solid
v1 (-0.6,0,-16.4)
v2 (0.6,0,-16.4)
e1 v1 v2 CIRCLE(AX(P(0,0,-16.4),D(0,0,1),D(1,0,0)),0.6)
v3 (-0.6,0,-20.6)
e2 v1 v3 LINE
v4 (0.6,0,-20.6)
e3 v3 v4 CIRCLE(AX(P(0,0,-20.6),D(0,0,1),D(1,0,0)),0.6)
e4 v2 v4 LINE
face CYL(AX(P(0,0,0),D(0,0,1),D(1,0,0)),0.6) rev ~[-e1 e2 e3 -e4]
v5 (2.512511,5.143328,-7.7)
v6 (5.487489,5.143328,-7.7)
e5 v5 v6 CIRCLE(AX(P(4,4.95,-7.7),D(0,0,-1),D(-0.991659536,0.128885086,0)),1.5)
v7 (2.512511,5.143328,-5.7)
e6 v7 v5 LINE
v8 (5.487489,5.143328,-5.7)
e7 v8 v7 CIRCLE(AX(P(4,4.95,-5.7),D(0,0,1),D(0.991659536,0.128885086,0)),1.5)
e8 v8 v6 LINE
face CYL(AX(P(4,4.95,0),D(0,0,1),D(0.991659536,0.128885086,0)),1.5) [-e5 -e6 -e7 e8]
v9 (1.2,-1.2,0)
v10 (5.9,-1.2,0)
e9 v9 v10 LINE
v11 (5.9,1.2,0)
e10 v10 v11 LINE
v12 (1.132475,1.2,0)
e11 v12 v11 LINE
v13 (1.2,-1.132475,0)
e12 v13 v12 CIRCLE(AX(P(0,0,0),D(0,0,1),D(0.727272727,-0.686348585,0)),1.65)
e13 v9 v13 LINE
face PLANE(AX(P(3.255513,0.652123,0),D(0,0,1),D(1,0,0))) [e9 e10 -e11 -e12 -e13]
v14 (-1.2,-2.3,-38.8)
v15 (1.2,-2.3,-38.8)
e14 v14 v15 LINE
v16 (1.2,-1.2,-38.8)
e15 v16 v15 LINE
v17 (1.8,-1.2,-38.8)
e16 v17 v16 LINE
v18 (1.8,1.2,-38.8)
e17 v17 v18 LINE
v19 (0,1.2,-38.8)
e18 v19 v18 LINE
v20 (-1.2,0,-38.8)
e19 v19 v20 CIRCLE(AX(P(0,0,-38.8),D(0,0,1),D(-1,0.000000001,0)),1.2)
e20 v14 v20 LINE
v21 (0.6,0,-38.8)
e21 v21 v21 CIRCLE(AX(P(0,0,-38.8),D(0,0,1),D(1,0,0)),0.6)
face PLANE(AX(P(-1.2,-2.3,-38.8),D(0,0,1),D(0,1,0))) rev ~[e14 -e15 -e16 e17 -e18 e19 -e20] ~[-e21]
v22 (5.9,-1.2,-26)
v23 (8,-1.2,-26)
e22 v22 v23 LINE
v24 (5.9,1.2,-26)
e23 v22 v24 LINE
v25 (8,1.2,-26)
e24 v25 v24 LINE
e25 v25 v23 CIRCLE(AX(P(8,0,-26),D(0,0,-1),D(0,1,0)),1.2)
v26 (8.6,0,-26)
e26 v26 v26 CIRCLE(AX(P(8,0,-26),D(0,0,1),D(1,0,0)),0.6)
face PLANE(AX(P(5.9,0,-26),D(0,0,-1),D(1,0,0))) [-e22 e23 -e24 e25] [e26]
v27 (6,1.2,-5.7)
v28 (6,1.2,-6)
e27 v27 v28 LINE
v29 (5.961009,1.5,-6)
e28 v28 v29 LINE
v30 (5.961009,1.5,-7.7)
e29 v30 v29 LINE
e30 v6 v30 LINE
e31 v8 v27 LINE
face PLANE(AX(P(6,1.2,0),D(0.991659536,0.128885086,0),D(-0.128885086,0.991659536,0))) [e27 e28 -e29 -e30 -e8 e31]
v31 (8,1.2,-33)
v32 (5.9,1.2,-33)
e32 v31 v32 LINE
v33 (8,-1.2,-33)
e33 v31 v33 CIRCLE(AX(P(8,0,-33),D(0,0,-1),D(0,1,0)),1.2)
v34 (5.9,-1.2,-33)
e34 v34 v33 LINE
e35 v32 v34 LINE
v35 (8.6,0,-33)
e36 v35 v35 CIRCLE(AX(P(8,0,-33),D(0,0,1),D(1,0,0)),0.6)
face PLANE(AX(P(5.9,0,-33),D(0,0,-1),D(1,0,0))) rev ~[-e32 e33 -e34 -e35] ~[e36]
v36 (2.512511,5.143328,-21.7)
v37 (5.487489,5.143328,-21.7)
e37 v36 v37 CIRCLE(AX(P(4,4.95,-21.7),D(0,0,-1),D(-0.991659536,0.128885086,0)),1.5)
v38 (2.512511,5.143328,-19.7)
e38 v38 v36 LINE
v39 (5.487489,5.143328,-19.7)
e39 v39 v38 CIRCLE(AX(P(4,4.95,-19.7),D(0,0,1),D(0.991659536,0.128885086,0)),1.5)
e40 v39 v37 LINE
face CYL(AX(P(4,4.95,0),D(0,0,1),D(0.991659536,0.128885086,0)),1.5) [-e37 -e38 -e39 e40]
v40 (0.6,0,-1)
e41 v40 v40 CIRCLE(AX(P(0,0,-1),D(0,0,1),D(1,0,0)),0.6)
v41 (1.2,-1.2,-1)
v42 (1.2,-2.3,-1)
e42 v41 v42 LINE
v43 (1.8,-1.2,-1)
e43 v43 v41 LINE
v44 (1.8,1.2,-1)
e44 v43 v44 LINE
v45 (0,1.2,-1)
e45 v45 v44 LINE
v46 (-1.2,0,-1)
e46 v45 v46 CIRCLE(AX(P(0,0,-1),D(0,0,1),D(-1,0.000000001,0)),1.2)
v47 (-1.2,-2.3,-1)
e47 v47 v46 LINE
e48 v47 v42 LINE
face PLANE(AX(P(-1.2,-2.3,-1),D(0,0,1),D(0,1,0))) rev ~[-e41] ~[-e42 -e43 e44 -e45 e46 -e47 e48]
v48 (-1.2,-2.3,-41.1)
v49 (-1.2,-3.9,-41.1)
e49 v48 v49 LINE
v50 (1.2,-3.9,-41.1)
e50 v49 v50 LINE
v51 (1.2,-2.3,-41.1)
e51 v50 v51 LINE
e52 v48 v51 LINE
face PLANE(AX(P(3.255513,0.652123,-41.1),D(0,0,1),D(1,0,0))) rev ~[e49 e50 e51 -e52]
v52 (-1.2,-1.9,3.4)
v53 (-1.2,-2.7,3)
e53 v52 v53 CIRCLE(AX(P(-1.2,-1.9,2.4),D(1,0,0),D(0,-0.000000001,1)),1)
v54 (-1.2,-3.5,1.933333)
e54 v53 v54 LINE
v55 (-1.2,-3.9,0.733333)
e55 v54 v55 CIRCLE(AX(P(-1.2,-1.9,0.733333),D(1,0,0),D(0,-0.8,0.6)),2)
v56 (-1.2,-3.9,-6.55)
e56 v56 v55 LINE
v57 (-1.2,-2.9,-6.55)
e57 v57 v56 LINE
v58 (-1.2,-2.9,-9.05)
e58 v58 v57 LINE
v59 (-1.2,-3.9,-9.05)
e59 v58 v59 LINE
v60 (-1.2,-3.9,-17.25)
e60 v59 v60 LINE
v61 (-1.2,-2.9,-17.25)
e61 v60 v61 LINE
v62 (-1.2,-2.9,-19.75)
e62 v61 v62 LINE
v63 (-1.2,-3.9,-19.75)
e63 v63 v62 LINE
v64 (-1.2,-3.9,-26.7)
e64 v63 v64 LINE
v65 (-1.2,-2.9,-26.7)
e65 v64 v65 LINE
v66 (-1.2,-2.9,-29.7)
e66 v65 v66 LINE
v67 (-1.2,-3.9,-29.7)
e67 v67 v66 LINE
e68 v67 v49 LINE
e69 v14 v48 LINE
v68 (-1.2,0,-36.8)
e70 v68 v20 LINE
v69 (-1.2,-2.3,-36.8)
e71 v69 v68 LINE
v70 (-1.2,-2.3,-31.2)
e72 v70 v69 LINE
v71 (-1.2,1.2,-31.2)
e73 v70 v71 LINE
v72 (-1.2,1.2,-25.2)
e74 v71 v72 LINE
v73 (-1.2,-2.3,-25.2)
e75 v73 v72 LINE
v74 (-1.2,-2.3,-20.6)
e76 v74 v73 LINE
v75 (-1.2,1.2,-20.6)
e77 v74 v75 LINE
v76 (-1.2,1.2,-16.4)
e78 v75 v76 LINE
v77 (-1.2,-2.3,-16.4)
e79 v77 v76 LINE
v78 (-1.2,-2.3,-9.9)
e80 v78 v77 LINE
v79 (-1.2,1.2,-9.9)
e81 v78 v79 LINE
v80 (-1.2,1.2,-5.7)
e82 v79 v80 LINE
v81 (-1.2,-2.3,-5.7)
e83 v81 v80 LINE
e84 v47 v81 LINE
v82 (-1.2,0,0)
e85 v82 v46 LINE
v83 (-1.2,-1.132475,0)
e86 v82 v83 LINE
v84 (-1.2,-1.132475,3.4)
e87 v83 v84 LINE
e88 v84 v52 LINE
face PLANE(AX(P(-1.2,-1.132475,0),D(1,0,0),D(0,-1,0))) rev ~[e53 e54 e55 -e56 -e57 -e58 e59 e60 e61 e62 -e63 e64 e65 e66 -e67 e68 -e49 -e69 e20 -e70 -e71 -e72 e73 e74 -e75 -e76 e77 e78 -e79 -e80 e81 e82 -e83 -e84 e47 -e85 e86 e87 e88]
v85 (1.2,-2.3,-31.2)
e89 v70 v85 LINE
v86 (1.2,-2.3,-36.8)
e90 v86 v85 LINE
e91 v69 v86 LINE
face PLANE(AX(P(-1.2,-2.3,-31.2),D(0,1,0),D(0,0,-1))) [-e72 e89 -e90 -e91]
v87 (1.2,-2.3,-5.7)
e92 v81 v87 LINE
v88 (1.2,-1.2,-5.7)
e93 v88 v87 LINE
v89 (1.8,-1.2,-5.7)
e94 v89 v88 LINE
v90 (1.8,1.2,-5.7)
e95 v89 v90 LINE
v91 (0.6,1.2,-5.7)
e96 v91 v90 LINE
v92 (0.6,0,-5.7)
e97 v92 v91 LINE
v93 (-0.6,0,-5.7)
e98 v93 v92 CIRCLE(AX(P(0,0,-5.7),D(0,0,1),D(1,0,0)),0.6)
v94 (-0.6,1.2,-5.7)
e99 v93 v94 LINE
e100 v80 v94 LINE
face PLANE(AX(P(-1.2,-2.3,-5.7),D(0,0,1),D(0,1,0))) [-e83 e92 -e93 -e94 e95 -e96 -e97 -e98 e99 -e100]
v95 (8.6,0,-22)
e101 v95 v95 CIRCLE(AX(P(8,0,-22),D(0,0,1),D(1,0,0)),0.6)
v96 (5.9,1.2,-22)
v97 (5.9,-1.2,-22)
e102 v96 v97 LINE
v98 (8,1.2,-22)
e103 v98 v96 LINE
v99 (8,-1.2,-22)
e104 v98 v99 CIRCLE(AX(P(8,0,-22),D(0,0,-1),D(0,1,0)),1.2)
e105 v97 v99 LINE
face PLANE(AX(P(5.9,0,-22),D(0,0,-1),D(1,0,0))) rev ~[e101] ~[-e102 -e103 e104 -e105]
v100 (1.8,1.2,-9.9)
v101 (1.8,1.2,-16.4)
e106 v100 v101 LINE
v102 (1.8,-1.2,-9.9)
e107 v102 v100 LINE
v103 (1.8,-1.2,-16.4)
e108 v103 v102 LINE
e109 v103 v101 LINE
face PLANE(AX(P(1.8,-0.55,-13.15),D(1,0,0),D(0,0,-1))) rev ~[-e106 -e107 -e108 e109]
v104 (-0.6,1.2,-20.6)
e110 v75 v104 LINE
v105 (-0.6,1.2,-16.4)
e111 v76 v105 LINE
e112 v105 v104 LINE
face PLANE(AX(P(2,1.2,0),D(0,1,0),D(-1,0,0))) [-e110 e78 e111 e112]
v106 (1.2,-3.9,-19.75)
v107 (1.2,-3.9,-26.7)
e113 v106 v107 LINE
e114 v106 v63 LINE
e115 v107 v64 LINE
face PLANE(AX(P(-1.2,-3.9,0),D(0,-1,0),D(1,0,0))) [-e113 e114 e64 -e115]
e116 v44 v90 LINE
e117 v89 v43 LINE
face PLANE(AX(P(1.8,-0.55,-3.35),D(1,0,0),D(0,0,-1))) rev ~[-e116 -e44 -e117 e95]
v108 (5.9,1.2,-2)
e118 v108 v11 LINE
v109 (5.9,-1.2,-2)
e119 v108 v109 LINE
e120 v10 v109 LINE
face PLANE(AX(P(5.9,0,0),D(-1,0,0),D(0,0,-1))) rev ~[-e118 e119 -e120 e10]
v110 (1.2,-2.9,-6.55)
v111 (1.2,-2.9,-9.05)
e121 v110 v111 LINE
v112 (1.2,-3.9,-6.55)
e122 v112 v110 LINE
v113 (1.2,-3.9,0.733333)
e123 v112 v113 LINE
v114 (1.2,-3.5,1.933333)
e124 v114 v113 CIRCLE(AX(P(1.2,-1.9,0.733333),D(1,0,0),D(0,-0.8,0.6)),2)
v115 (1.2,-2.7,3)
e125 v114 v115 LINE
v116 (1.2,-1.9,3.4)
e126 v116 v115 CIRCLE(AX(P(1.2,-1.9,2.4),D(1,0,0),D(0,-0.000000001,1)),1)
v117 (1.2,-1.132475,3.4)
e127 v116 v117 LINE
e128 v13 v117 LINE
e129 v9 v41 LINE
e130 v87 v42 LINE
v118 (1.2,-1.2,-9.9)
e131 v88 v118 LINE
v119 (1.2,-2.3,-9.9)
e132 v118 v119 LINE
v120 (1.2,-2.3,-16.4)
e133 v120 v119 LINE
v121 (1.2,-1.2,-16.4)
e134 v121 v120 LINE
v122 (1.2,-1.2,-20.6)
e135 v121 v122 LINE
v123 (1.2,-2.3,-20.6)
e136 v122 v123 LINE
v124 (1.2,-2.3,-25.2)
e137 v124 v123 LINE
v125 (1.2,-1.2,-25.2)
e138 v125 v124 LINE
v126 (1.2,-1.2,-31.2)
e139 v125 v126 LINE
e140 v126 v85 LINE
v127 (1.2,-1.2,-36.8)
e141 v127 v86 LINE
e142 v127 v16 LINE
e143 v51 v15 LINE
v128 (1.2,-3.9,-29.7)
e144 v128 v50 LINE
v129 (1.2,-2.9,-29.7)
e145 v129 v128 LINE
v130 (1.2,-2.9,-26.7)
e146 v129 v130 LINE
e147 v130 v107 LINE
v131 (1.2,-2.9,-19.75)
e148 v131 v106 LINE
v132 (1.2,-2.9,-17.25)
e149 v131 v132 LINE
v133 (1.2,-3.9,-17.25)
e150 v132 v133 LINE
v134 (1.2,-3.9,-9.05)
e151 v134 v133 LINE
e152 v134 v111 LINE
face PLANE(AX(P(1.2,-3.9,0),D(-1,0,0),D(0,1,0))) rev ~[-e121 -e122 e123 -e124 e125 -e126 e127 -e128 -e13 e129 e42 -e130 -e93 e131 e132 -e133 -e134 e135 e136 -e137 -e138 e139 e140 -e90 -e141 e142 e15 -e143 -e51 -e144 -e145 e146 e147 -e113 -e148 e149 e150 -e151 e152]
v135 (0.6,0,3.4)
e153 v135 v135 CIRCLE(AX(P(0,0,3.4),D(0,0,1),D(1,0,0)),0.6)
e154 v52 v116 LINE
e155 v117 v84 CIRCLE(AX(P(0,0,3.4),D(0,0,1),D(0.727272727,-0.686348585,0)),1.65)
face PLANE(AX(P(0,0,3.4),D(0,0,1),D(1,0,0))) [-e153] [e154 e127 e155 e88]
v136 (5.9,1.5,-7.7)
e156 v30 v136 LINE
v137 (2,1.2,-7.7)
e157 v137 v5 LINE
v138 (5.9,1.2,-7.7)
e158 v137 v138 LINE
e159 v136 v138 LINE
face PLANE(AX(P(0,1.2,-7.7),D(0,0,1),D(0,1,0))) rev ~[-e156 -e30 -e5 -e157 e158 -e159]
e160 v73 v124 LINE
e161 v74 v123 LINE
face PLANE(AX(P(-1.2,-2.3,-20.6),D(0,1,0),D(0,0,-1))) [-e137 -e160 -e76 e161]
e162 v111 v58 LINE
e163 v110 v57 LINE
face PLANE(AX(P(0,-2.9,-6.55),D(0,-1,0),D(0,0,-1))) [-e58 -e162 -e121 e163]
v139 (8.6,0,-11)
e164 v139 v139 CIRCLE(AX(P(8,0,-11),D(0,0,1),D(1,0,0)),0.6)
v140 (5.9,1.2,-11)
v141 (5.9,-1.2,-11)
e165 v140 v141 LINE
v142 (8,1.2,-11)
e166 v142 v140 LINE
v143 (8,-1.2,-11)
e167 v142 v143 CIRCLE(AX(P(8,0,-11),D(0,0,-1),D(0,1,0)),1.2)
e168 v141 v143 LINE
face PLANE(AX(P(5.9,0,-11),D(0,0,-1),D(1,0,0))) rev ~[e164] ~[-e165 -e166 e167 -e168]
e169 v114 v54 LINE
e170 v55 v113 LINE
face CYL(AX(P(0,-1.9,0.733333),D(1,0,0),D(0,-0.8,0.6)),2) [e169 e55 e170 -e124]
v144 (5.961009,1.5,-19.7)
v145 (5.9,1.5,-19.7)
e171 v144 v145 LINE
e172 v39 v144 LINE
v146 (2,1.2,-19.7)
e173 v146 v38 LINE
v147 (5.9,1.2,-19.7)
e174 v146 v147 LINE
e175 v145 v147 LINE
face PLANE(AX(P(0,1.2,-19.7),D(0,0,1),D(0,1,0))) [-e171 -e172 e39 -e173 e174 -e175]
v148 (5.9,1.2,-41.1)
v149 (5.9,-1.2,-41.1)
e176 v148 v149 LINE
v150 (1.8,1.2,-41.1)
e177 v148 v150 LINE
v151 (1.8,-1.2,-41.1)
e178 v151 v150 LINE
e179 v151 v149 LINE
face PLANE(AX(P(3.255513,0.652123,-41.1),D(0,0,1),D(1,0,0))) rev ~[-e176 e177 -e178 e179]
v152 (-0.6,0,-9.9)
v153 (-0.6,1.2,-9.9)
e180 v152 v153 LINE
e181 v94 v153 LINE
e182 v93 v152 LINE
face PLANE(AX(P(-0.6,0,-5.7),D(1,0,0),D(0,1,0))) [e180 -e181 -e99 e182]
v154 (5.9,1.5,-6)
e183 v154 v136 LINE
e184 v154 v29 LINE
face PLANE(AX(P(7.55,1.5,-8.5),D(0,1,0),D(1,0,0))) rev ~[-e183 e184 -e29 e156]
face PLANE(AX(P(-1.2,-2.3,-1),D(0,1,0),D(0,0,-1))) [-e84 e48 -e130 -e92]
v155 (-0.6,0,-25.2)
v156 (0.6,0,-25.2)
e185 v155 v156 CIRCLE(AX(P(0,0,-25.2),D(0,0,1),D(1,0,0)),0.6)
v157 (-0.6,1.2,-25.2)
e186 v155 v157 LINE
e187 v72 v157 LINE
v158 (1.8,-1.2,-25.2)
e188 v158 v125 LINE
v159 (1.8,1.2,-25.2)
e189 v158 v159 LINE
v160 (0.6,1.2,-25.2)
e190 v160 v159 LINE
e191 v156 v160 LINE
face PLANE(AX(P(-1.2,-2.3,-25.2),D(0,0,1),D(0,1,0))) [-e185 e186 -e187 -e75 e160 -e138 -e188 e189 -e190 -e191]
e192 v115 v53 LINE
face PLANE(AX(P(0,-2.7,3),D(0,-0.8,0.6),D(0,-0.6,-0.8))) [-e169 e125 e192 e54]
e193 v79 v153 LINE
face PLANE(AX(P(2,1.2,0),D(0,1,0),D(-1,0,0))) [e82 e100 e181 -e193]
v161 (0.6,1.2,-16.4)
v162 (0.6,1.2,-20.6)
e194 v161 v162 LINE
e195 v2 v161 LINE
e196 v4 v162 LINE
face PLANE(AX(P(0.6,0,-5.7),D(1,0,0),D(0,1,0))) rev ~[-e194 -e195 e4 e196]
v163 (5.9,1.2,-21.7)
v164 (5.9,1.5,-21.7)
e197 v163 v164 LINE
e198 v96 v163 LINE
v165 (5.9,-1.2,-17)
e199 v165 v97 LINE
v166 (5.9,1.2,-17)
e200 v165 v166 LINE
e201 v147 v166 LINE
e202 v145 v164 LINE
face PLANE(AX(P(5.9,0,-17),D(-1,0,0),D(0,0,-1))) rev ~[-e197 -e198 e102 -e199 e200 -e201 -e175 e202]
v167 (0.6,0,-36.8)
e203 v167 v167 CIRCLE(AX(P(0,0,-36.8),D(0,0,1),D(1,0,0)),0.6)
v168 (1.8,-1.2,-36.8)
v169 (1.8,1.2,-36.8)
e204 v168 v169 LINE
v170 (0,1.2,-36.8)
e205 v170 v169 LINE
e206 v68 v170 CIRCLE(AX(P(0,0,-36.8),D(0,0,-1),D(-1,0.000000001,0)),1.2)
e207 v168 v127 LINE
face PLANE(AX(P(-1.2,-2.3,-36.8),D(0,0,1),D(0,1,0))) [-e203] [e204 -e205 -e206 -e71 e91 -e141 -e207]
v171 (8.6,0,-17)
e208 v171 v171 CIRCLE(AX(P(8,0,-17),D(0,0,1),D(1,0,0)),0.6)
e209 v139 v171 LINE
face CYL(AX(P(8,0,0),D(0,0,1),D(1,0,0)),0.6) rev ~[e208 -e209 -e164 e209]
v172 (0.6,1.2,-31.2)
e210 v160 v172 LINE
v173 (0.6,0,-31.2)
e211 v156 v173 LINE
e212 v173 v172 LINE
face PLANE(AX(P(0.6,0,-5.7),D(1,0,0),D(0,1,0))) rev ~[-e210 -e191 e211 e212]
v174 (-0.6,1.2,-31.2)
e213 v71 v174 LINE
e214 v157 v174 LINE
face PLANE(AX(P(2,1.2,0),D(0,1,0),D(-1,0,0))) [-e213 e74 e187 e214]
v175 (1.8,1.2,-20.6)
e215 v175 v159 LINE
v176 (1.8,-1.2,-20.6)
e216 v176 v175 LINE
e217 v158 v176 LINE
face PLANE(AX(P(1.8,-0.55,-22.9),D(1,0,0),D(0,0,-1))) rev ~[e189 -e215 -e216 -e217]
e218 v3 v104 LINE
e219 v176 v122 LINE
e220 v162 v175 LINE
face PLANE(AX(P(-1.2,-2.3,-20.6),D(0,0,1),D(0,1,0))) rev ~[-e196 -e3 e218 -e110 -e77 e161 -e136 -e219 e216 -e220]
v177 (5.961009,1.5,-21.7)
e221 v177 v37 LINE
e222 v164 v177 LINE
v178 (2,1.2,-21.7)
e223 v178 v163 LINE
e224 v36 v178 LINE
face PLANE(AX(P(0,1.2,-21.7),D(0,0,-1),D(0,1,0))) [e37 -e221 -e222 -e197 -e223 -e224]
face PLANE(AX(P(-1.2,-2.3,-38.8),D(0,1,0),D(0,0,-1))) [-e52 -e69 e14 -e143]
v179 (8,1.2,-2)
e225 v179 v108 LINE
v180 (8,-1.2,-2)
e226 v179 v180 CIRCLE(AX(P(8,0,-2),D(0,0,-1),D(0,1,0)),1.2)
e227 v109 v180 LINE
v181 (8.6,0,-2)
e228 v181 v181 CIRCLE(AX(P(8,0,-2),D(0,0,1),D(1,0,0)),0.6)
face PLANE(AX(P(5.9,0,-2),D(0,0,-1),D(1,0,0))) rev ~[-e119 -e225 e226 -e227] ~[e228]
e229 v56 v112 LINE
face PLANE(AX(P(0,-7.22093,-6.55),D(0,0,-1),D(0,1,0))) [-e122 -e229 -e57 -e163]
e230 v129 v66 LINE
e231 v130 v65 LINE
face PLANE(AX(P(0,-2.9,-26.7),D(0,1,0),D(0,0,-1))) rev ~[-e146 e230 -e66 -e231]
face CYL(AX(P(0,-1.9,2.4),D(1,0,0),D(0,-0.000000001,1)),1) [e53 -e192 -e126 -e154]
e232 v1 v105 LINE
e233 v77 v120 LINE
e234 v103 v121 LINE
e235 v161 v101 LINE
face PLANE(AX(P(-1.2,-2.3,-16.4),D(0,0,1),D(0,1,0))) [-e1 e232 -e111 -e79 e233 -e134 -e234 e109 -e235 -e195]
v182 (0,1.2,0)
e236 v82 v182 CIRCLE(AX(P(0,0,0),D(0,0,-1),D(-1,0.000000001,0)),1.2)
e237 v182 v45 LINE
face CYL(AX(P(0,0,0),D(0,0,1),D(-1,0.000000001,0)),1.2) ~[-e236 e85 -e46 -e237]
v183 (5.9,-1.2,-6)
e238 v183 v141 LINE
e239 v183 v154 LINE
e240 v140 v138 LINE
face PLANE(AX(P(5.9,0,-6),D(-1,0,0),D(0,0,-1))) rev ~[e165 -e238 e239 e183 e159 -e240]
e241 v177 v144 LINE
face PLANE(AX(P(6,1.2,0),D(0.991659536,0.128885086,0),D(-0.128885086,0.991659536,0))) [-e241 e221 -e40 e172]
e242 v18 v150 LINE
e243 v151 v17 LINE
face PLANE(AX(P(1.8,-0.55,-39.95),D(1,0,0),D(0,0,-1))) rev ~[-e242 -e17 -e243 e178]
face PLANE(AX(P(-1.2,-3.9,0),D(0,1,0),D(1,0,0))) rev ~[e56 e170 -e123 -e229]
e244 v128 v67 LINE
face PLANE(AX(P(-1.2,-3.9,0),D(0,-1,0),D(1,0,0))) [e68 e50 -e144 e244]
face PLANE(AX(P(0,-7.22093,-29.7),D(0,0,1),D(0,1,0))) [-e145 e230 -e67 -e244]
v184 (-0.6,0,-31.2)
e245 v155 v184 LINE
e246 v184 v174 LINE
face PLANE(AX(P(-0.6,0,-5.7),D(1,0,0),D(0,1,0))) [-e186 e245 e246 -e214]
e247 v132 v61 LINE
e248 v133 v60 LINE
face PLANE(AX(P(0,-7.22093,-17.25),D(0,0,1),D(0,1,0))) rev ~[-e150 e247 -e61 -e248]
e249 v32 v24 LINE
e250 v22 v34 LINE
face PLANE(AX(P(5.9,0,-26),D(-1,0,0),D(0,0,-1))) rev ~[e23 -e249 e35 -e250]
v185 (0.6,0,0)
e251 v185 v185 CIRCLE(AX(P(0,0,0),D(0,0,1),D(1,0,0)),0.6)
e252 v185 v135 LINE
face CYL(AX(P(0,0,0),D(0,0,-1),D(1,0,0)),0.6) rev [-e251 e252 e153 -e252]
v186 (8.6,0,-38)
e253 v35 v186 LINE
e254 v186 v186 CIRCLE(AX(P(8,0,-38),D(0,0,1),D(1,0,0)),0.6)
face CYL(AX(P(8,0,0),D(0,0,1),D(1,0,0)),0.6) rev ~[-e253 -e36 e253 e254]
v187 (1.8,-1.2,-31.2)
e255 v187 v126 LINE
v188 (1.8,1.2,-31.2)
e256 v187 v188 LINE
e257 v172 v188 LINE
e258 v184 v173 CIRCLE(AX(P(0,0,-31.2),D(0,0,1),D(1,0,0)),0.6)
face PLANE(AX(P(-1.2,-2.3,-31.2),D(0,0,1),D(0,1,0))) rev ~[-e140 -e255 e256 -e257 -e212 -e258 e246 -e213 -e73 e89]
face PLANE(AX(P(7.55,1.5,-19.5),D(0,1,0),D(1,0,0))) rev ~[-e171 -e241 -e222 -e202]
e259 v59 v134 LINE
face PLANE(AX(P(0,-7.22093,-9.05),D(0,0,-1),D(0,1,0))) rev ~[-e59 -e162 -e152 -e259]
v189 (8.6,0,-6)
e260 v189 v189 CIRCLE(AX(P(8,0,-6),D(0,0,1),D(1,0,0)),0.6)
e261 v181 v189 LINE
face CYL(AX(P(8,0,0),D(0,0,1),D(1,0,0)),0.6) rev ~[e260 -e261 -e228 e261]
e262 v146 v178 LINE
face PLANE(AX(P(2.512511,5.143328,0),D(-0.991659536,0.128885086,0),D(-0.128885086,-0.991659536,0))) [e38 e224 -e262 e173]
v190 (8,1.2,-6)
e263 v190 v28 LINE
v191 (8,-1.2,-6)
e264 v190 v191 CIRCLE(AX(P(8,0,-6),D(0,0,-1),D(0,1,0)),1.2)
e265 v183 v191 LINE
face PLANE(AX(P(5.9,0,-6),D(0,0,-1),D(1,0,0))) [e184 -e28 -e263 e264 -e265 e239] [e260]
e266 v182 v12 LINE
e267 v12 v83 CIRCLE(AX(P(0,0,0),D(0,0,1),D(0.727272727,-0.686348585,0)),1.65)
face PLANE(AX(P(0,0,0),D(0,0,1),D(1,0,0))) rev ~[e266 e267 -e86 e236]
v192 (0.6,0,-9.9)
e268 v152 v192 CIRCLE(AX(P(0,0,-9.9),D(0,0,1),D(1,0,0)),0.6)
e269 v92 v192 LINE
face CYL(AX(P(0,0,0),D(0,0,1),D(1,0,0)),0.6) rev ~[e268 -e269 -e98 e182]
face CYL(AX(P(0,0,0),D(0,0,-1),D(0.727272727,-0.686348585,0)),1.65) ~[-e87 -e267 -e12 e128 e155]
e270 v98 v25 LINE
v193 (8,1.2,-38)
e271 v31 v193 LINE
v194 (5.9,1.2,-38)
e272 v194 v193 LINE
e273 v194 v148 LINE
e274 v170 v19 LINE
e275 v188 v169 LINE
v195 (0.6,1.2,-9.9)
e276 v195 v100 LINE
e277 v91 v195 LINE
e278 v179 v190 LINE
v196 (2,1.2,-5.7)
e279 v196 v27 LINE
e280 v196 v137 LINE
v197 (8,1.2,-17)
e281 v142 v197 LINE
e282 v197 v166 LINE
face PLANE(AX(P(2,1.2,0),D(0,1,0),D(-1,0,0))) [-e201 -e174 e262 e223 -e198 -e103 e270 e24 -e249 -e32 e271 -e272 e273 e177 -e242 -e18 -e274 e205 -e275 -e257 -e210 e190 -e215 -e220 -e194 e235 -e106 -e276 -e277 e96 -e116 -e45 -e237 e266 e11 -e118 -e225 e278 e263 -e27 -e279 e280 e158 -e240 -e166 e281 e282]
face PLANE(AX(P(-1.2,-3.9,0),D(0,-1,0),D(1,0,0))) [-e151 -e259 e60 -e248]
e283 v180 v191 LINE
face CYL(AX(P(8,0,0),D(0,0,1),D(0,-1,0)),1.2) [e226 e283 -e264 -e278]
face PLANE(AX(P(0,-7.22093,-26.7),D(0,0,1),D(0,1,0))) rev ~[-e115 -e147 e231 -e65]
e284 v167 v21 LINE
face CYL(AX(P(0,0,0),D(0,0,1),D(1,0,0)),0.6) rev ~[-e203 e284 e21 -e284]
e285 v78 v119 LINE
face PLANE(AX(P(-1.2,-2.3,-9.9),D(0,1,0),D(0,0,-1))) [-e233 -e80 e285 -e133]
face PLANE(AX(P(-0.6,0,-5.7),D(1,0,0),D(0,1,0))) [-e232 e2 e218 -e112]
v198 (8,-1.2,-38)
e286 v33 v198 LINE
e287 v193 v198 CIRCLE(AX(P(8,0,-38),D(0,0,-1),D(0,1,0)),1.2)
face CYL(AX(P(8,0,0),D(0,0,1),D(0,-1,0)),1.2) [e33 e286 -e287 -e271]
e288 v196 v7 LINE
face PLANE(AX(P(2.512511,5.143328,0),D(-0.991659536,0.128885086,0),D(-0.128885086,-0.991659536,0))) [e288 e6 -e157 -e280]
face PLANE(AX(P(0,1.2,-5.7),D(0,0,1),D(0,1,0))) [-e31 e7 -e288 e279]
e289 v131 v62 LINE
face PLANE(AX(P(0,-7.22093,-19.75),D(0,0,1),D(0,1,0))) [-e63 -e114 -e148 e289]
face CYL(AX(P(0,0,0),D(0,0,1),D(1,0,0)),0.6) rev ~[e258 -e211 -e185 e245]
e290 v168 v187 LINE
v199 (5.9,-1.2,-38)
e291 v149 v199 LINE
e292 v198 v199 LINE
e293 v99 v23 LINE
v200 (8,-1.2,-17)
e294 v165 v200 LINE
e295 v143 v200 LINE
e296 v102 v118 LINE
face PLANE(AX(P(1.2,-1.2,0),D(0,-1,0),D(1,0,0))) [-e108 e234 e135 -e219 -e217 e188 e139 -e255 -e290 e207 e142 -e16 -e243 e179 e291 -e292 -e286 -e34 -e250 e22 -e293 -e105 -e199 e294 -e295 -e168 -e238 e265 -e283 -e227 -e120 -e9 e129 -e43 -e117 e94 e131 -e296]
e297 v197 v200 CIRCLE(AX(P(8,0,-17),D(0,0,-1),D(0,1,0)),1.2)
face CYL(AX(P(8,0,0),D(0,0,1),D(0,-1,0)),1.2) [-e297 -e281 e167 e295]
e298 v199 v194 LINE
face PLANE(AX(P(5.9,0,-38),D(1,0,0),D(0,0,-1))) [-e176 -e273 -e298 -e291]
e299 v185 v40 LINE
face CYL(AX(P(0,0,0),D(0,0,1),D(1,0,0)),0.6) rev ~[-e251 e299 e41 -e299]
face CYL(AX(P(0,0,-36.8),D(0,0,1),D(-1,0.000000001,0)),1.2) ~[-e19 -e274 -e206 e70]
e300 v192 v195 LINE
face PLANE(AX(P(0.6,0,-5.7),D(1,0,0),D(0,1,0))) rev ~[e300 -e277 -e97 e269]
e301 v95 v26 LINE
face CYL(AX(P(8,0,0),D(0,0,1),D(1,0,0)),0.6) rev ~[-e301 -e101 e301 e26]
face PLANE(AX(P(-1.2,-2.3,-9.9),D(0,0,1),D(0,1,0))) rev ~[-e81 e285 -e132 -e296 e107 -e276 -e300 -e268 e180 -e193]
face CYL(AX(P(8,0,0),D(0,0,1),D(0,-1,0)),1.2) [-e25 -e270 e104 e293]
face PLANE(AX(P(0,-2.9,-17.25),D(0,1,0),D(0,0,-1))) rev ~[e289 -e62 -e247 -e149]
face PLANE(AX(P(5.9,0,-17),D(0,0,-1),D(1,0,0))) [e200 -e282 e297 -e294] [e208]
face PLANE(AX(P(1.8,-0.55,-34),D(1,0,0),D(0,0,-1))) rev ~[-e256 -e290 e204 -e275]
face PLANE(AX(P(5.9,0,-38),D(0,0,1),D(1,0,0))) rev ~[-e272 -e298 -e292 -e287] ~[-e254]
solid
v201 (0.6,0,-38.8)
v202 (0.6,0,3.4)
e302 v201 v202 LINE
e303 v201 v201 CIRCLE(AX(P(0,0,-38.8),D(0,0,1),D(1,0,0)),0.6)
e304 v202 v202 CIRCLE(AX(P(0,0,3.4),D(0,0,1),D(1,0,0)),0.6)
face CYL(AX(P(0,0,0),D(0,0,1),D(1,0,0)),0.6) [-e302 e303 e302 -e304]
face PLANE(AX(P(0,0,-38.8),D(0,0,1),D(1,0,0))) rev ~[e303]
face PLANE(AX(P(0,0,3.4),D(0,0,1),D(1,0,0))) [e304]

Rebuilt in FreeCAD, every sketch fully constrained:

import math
import FreeCAD as App
import Part
import Sketcher
from FreeCAD import Vector


def add_polygon(sketch, points):
    """Adds a closed chain of lines whose ends are joined by coincident constraints."""
    first, n = sketch.GeometryCount, len(points)
    for a, b in zip(points, points[1:] + points[:1]):
        sketch.addGeometry(Part.LineSegment(App.Vector(*a, 0), App.Vector(*b, 0)), False)
    for i in range(n):
        sketch.addConstraint(Sketcher.Constraint("Coincident", first + i, 2, first + (i + 1) % n, 1))

doc = App.newDocument("Part")
params = doc.addObject("Spreadsheet::Sheet", "Params")
for row, (alias, value) in enumerate([
    ("sketch1_diameter", "1.2 mm"),
    ("sketch1_radius", "1.2 mm"),
    ("sketch1_radius2", "1.5 mm"),
    ("sketch1_width", "2 mm"),
    ("sketch1_width2", "3.2 mm"),
    ("pad1_length", "41.1 mm"),
    ("sketch2_height", "12 mm"),
    ("sketch2_height2", "5.7 mm"),
    ("sketch2_height3", "19.4 mm"),
    ("sketch2_width", "5.25 mm"),
    ("pocket1_length", "19.5 mm"),
    ("sketch3_width", "3.5 mm"),
    ("sketch3_height", "4.7 mm"),
    ("sketch3_height2", "6.5 mm"),
    ("sketch3_height3", "4.6 mm"),
    ("sketch3_height4", "5.6 mm"),
    ("pocket2_length", "3 mm"),
    ("sketch4_radius", "1.2 mm"),
    ("pocket3_length", "3 mm"),
    ("sketch5_radius", "1.2 mm"),
    ("pocket4_length", "3 mm"),
    ("sketch6_width", "1.2 mm"),
    ("pocket5_length", "27 mm"),
    ("sketch7_height", "3 mm"),
    ("sketch7_height2", "2.5 mm"),
    ("pocket6_length", "7 mm"),
    ("sketch8_height", "2 mm"),
    ("sketch8_height2", "5 mm"),
    ("sketch8_height3", "7 mm"),
    ("sketch8_width", "3.3 mm"),
    ("sketch8_height4", "3.1 mm"),
    ("pocket7_length", "3 mm"),
    ("sketch9_diameter", "1.2 mm"),
    ("sketch9_radius", "1.65 mm"),
    ("sketch9_width", "2.4 mm"),
    ("pad2_length", "3.4 mm"),
    ("sketch10_radius", "1 mm"),
    ("sketch10_radius2", "2 mm"),
    ("pocket8_length", "3.4 mm"),
    ("sketch11_diameter", "1.2 mm"),
    ("pad3_length", "3.4 mm"),
    ("pad3_length2", "38.8 mm"),
], start=1):
    params.set(f"A{row}", alias)
    params.set(f"B{row}", "=" + value)
    params.setAlias(f"B{row}", alias)

body = doc.addObject("PartDesign::Body", "Body")

sketch1 = doc.addObject("Sketcher::SketchObject", "Sketch")
body.addObject(sketch1)
sketch1.AttachmentSupport = (doc.XY_Plane, [""])
sketch1.MapMode = "FlatFace"
sketch1.addGeometry(Part.LineSegment(Vector(2, 1.2, 0), Vector(-1.2, 1.2, 0)), False)
sketch1.addGeometry(Part.LineSegment(Vector(-1.2, 1.2, 0), Vector(-1.2, -3.9, 0)), False)
sketch1.addGeometry(Part.LineSegment(Vector(-1.2, -3.9, 0), Vector(1.2, -3.9, 0)), False)
sketch1.addGeometry(Part.LineSegment(Vector(1.2, -3.9, 0), Vector(1.2, -1.2, 0)), False)
sketch1.addGeometry(Part.LineSegment(Vector(1.2, -1.2, 0), Vector(8, -1.2, 0)), False)
sketch1.addGeometry(Part.ArcOfCircle(Part.Circle(Vector(8, 0, 0), Vector(0, 0, 1), 1.2), math.radians(-90), math.radians(90)), False)
sketch1.addGeometry(Part.LineSegment(Vector(8, 1.2, 0), Vector(6, 1.2, 0)), False)
sketch1.addGeometry(Part.LineSegment(Vector(6, 1.2, 0), Vector(5.5, 5.1, 0)), False)
sketch1.addGeometry(Part.ArcOfCircle(Part.Circle(Vector(4, 4.9, 0), Vector(0, 0, 1), 1.5), math.radians(7), math.radians(173)), False)
sketch1.addGeometry(Part.LineSegment(Vector(2.5, 5.1, 0), Vector(2, 1.2, 0)), False)
sketch1.addGeometry(Part.Circle(Vector(0, 0, 0), Vector(0, 0, 1), 0.6), False)
sketch1.addGeometry(Part.Circle(Vector(8, 0, 0), Vector(0, 0, 1), 0.6), False)
sketch1.addConstraint(Sketcher.Constraint("Coincident", 0, 2, 1, 1))
sketch1.addConstraint(Sketcher.Constraint("Coincident", 1, 2, 2, 1))
sketch1.addConstraint(Sketcher.Constraint("Coincident", 2, 2, 3, 1))
sketch1.addConstraint(Sketcher.Constraint("Coincident", 3, 2, 4, 1))
sketch1.addConstraint(Sketcher.Constraint("Tangent", 4, 2, 5, 1))
sketch1.addConstraint(Sketcher.Constraint("Tangent", 5, 2, 6, 1))
sketch1.addConstraint(Sketcher.Constraint("Coincident", 6, 2, 7, 1))
sketch1.addConstraint(Sketcher.Constraint("Tangent", 7, 2, 8, 1))
sketch1.addConstraint(Sketcher.Constraint("Tangent", 8, 2, 9, 1))
sketch1.addConstraint(Sketcher.Constraint("Coincident", 9, 2, 0, 1))
sketch1.addConstraint(Sketcher.Constraint("Horizontal", 0))
sketch1.addConstraint(Sketcher.Constraint("Vertical", 1))
sketch1.addConstraint(Sketcher.Constraint("Horizontal", 2))
sketch1.addConstraint(Sketcher.Constraint("Vertical", 3))
sketch1.addConstraint(Sketcher.Constraint("Horizontal", 4))
sketch1.addConstraint(Sketcher.Constraint("Horizontal", 6))
sketch1.addConstraint(Sketcher.Constraint("Coincident", 10, 3, -1, 1))
sketch1.addConstraint(Sketcher.Constraint("Coincident", 11, 3, 5, 3))
sketch1.addConstraint(Sketcher.Constraint("Equal", 10, 11))
sketch1.addConstraint(Sketcher.Constraint("Symmetric", 0, 2, 3, 2, -1, 1))
sketch1.addConstraint(Sketcher.Constraint("PointOnObject", 5, 3, -1))
sketch1.addConstraint(Sketcher.Constraint("Horizontal", 7, 2, 8, 2))
sketch1.addConstraint(Sketcher.Constraint("Diameter", 10, 1.2))
sketch1.addConstraint(Sketcher.Constraint("Radius", 5, 1.2))
sketch1.addConstraint(Sketcher.Constraint("Radius", 8, 1.5))
sketch1.addConstraint(Sketcher.Constraint("DistanceX", 6, 2, 6, 1, 2.0))
sketch1.addConstraint(Sketcher.Constraint("DistanceX", 0, 2, 0, 1, 3.2))
sketch1.addConstraint(Sketcher.Constraint("DistanceX", 2, 1, 2, 2, 2.4))
sketch1.addConstraint(Sketcher.Constraint("DistanceX", 4, 1, 4, 2, 6.8))
sketch1.addConstraint(Sketcher.Constraint("DistanceY", 1, 2, 1, 1, 5.1))
sketch1.addConstraint(Sketcher.Constraint("DistanceY", -1, 1, 8, 3, 4.95))
sketch1.setExpression("Constraints[22]", "Params.sketch1_diameter")
sketch1.setExpression("Constraints[23]", "Params.sketch1_radius")
sketch1.setExpression("Constraints[24]", "Params.sketch1_radius2")
sketch1.setExpression("Constraints[25]", "Params.sketch1_width")
sketch1.setExpression("Constraints[26]", "Params.sketch1_width2")
pad1 = doc.addObject("PartDesign::Pad", "Pad")
body.addObject(pad1)
pad1.Profile = sketch1
pad1.setExpression("Length", "Params.pad1_length")
pad1.Reversed = True

sketch2 = doc.addObject("Sketcher::SketchObject", "Sketch001")
body.addObject(sketch2)
sketch2.AttachmentSupport = (doc.YZ_Plane, [""])
sketch2.MapMode = "FlatFace"
add_polygon(sketch2, [(6, 0), (1, 0), (1, -6), (6, -6)])
add_polygon(sketch2, [(6, -8), (1, -8), (1, -20), (6, -20)])
add_polygon(sketch2, [(6, -22), (1, -22), (1, -41), (6, -41)])
sketch2.addConstraint(Sketcher.Constraint("Horizontal", 0))
sketch2.addConstraint(Sketcher.Constraint("Vertical", 1))
sketch2.addConstraint(Sketcher.Constraint("Horizontal", 2))
sketch2.addConstraint(Sketcher.Constraint("Vertical", 3))
sketch2.addConstraint(Sketcher.Constraint("Horizontal", 4))
sketch2.addConstraint(Sketcher.Constraint("Vertical", 5))
sketch2.addConstraint(Sketcher.Constraint("Horizontal", 6))
sketch2.addConstraint(Sketcher.Constraint("Vertical", 7))
sketch2.addConstraint(Sketcher.Constraint("Horizontal", 8))
sketch2.addConstraint(Sketcher.Constraint("Vertical", 9))
sketch2.addConstraint(Sketcher.Constraint("Horizontal", 10))
sketch2.addConstraint(Sketcher.Constraint("Vertical", 11))
sketch2.addConstraint(Sketcher.Constraint("PointOnObject", 0, 2, -1))
sketch2.addConstraint(Sketcher.Constraint("Vertical", 1, 2, 4, 2))
sketch2.addConstraint(Sketcher.Constraint("Vertical", 3, 2, 6, 2))
sketch2.addConstraint(Sketcher.Constraint("Vertical", 5, 2, 8, 2))
sketch2.addConstraint(Sketcher.Constraint("Vertical", 7, 2, 10, 2))
sketch2.addConstraint(Sketcher.Constraint("DistanceY", 5, 2, 5, 1, 12.0))
sketch2.addConstraint(Sketcher.Constraint("DistanceY", 1, 2, 1, 1, 5.7))
sketch2.addConstraint(Sketcher.Constraint("DistanceY", 9, 2, 9, 1, 19.4))
sketch2.addConstraint(Sketcher.Constraint("DistanceY", 4, 2, 1, 2, 2.0))
sketch2.addConstraint(Sketcher.Constraint("DistanceY", 8, 2, 5, 2, 2.0))
sketch2.addConstraint(Sketcher.Constraint("DistanceX", 0, 2, 0, 1, 5.25))
sketch2.addConstraint(Sketcher.Constraint("DistanceX", -1, 1, 0, 2, 1.2))
sketch2.setExpression("Constraints[29]", "Params.sketch2_height")
sketch2.setExpression("Constraints[30]", "Params.sketch2_height2")
sketch2.setExpression("Constraints[31]", "Params.sketch2_height3")
sketch2.setExpression("Constraints[34]", "Params.sketch2_width")
pocket1 = doc.addObject("PartDesign::Pocket", "Pocket")
body.addObject(pocket1)
pocket1.Profile = sketch2
pocket1.setExpression("Length", "Params.pocket1_length")
pocket1.Midplane = True

sketch3 = doc.addObject("Sketcher::SketchObject", "Sketch002")
body.addObject(sketch3)
sketch3.AttachmentSupport = (doc.YZ_Plane, [""])
sketch3.MapMode = "FlatFace"
sketch3.AttachmentOffset = App.Placement(Vector(0, 0, -1.2), App.Rotation())
add_polygon(sketch3, [(1.2, -1), (-2.3, -1), (-2.3, -5.7), (1.2, -5.7)])
add_polygon(sketch3, [(1.2, -9.9), (-2.3, -9.9), (-2.3, -16.4), (1.2, -16.4)])
add_polygon(sketch3, [(1.2, -20.6), (-2.3, -20.6), (-2.3, -25.2), (1.2, -25.2)])
add_polygon(sketch3, [(1.2, -31.2), (-2.3, -31.2), (-2.3, -36.8), (1.2, -36.8)])
add_polygon(sketch3, [(1.2, -38.8), (-2.3, -38.8), (-2.3, -41.1), (1.2, -41.1)])
sketch3.addConstraint(Sketcher.Constraint("Horizontal", 0))
sketch3.addConstraint(Sketcher.Constraint("Vertical", 1))
sketch3.addConstraint(Sketcher.Constraint("Horizontal", 2))
sketch3.addConstraint(Sketcher.Constraint("Vertical", 3))
sketch3.addConstraint(Sketcher.Constraint("Horizontal", 4))
sketch3.addConstraint(Sketcher.Constraint("Vertical", 5))
sketch3.addConstraint(Sketcher.Constraint("Horizontal", 6))
sketch3.addConstraint(Sketcher.Constraint("Vertical", 7))
sketch3.addConstraint(Sketcher.Constraint("Horizontal", 8))
sketch3.addConstraint(Sketcher.Constraint("Vertical", 9))
sketch3.addConstraint(Sketcher.Constraint("Horizontal", 10))
sketch3.addConstraint(Sketcher.Constraint("Vertical", 11))
sketch3.addConstraint(Sketcher.Constraint("Horizontal", 12))
sketch3.addConstraint(Sketcher.Constraint("Vertical", 13))
sketch3.addConstraint(Sketcher.Constraint("Horizontal", 14))
sketch3.addConstraint(Sketcher.Constraint("Vertical", 15))
sketch3.addConstraint(Sketcher.Constraint("Horizontal", 16))
sketch3.addConstraint(Sketcher.Constraint("Vertical", 17))
sketch3.addConstraint(Sketcher.Constraint("Horizontal", 18))
sketch3.addConstraint(Sketcher.Constraint("Vertical", 19))
sketch3.addConstraint(Sketcher.Constraint("Vertical", 1, 2, 4, 2))
sketch3.addConstraint(Sketcher.Constraint("Vertical", 3, 2, 6, 2))
sketch3.addConstraint(Sketcher.Constraint("Vertical", 5, 2, 8, 2))
sketch3.addConstraint(Sketcher.Constraint("Vertical", 7, 2, 10, 2))
sketch3.addConstraint(Sketcher.Constraint("Vertical", 9, 2, 12, 2))
sketch3.addConstraint(Sketcher.Constraint("Vertical", 11, 2, 14, 2))
sketch3.addConstraint(Sketcher.Constraint("Vertical", 13, 2, 16, 2))
sketch3.addConstraint(Sketcher.Constraint("Vertical", 15, 2, 18, 2))
sketch3.addConstraint(Sketcher.Constraint("DistanceX", 0, 2, 0, 1, 3.5))
sketch3.addConstraint(Sketcher.Constraint("DistanceY", 1, 2, 1, 1, 4.7))
sketch3.addConstraint(Sketcher.Constraint("DistanceY", 5, 2, 5, 1, 6.5))
sketch3.addConstraint(Sketcher.Constraint("DistanceY", 9, 2, 9, 1, 4.6))
sketch3.addConstraint(Sketcher.Constraint("DistanceY", 13, 2, 13, 1, 5.6))
sketch3.addConstraint(Sketcher.Constraint("DistanceY", 17, 2, 17, 1, 2.3))
sketch3.addConstraint(Sketcher.Constraint("DistanceY", 0, 2, -1, 1, 1.0))
sketch3.addConstraint(Sketcher.Constraint("DistanceY", 12, 2, 9, 2, 6.0))
sketch3.addConstraint(Sketcher.Constraint("DistanceY", 16, 2, 13, 2, 2.0))
sketch3.addConstraint(Sketcher.Constraint("DistanceX", 0, 2, -1, 1, 2.3))
sketch3.addConstraint(Sketcher.Constraint("DistanceY", 4, 2, -1, 1, 9.9))
sketch3.addConstraint(Sketcher.Constraint("DistanceY", 8, 2, -1, 1, 20.6))
sketch3.setExpression("Constraints[48]", "Params.sketch3_width")
sketch3.setExpression("Constraints[49]", "Params.sketch3_height")
sketch3.setExpression("Constraints[50]", "Params.sketch3_height2")
sketch3.setExpression("Constraints[51]", "Params.sketch3_height3")
sketch3.setExpression("Constraints[52]", "Params.sketch3_height4")
pocket2 = doc.addObject("PartDesign::Pocket", "Pocket001")
body.addObject(pocket2)
pocket2.Profile = sketch3
pocket2.setExpression("Length", "Params.pocket2_length")
pocket2.Reversed = True

sketch4 = doc.addObject("Sketcher::SketchObject", "Sketch003")
body.addObject(sketch4)
sketch4.AttachmentSupport = (doc.XY_Plane, [""])
sketch4.MapMode = "FlatFace"
sketch4.addGeometry(Part.LineSegment(Vector(0, 1.2, 0), Vector(-1.2, 1.2, 0)), False)
sketch4.addGeometry(Part.LineSegment(Vector(-1.2, 1.2, 0), Vector(-1.2, 0, 0)), False)
sketch4.addGeometry(Part.ArcOfCircle(Part.Circle(Vector(0, 0, 0), Vector(0, 0, 1), 1.2), math.radians(90), math.radians(180)), False)
sketch4.addConstraint(Sketcher.Constraint("Coincident", 0, 2, 1, 1))
sketch4.addConstraint(Sketcher.Constraint("Tangent", 1, 2, 2, 2))
sketch4.addConstraint(Sketcher.Constraint("Tangent", 2, 1, 0, 1))
sketch4.addConstraint(Sketcher.Constraint("Horizontal", 0))
sketch4.addConstraint(Sketcher.Constraint("Vertical", 1))
sketch4.addConstraint(Sketcher.Constraint("Coincident", 2, 3, -1, 1))
sketch4.addConstraint(Sketcher.Constraint("Radius", 2, 1.2))
sketch4.setExpression("Constraints[6]", "Params.sketch4_radius")
pocket3 = doc.addObject("PartDesign::Pocket", "Pocket002")
body.addObject(pocket3)
pocket3.Profile = sketch4
pocket3.setExpression("Length", "Params.pocket3_length")

sketch5 = doc.addObject("Sketcher::SketchObject", "Sketch004")
body.addObject(sketch5)
sketch5.AttachmentSupport = (doc.XY_Plane, [""])
sketch5.MapMode = "FlatFace"
sketch5.AttachmentOffset = App.Placement(Vector(0, 0, -36.8), App.Rotation())
sketch5.addGeometry(Part.LineSegment(Vector(0, 1.2, 0), Vector(-1.2, 1.2, 0)), False)
sketch5.addGeometry(Part.LineSegment(Vector(-1.2, 1.2, 0), Vector(-1.2, 0, 0)), False)
sketch5.addGeometry(Part.ArcOfCircle(Part.Circle(Vector(0, 0, 0), Vector(0, 0, 1), 1.2), math.radians(90), math.radians(180)), False)
sketch5.addConstraint(Sketcher.Constraint("Coincident", 0, 2, 1, 1))
sketch5.addConstraint(Sketcher.Constraint("Tangent", 1, 2, 2, 2))
sketch5.addConstraint(Sketcher.Constraint("Tangent", 2, 1, 0, 1))
sketch5.addConstraint(Sketcher.Constraint("Horizontal", 0))
sketch5.addConstraint(Sketcher.Constraint("Vertical", 1))
sketch5.addConstraint(Sketcher.Constraint("Coincident", 2, 3, -1, 1))
sketch5.addConstraint(Sketcher.Constraint("Radius", 2, 1.2))
sketch5.setExpression("Constraints[6]", "Params.sketch5_radius")
pocket4 = doc.addObject("PartDesign::Pocket", "Pocket003")
body.addObject(pocket4)
pocket4.Profile = sketch5
pocket4.setExpression("Length", "Params.pocket4_length")

sketch6 = doc.addObject("Sketcher::SketchObject", "Sketch005")
body.addObject(sketch6)
sketch6.AttachmentSupport = (doc.XY_Plane, [""])
sketch6.MapMode = "FlatFace"
sketch6.AttachmentOffset = App.Placement(Vector(0, 0, -5.7), App.Rotation())
add_polygon(sketch6, [(-0.6, 1.2), (-0.6, 0), (0.6, 0), (0.6, 1.2)])
sketch6.addConstraint(Sketcher.Constraint("Vertical", 0))
sketch6.addConstraint(Sketcher.Constraint("Horizontal", 1))
sketch6.addConstraint(Sketcher.Constraint("Vertical", 2))
sketch6.addConstraint(Sketcher.Constraint("Horizontal", 3))
sketch6.addConstraint(Sketcher.Constraint("Symmetric", 0, 2, 1, 2, -1, 1))
sketch6.addConstraint(Sketcher.Constraint("Equal", 3, 0))
sketch6.addConstraint(Sketcher.Constraint("DistanceX", 1, 1, 1, 2, 1.2))
sketch6.setExpression("Constraints[10]", "Params.sketch6_width")
pocket5 = doc.addObject("PartDesign::Pocket", "Pocket004")
body.addObject(pocket5)
pocket5.Profile = sketch6
pocket5.setExpression("Length", "Params.pocket5_length")

sketch7 = doc.addObject("Sketcher::SketchObject", "Sketch006")
body.addObject(sketch7)
sketch7.AttachmentSupport = (doc.YZ_Plane, [""])
sketch7.MapMode = "FlatFace"
add_polygon(sketch7, [(-2.9, -26.7), (-7.2, -26.7), (-7.2, -29.7), (-2.9, -29.7)])
add_polygon(sketch7, [(-2.9, -17.2), (-7.2, -17.2), (-7.2, -19.8), (-2.9, -19.8)])
add_polygon(sketch7, [(-2.9, -6.5), (-7.2, -6.5), (-7.2, -9.1), (-2.9, -9.1)])
sketch7.addConstraint(Sketcher.Constraint("Horizontal", 0))
sketch7.addConstraint(Sketcher.Constraint("Vertical", 1))
sketch7.addConstraint(Sketcher.Constraint("Horizontal", 2))
sketch7.addConstraint(Sketcher.Constraint("Vertical", 3))
sketch7.addConstraint(Sketcher.Constraint("Horizontal", 4))
sketch7.addConstraint(Sketcher.Constraint("Vertical", 5))
sketch7.addConstraint(Sketcher.Constraint("Horizontal", 6))
sketch7.addConstraint(Sketcher.Constraint("Vertical", 7))
sketch7.addConstraint(Sketcher.Constraint("Horizontal", 8))
sketch7.addConstraint(Sketcher.Constraint("Vertical", 9))
sketch7.addConstraint(Sketcher.Constraint("Horizontal", 10))
sketch7.addConstraint(Sketcher.Constraint("Vertical", 11))
sketch7.addConstraint(Sketcher.Constraint("Vertical", 1, 2, 4, 2))
sketch7.addConstraint(Sketcher.Constraint("Vertical", 3, 2, 6, 2))
sketch7.addConstraint(Sketcher.Constraint("Vertical", 5, 2, 8, 2))
sketch7.addConstraint(Sketcher.Constraint("Vertical", 7, 2, 10, 2))
sketch7.addConstraint(Sketcher.Constraint("Equal", 7, 9))
sketch7.addConstraint(Sketcher.Constraint("DistanceY", 1, 2, 1, 1, 3.0))
sketch7.addConstraint(Sketcher.Constraint("DistanceY", 5, 2, 5, 1, 2.5))
sketch7.addConstraint(Sketcher.Constraint("DistanceY", 0, 2, -1, 1, 26.7))
sketch7.addConstraint(Sketcher.Constraint("DistanceX", 2, 2, -1, 1, 2.9))
sketch7.addConstraint(Sketcher.Constraint("DistanceY", 4, 2, 8, 2, 10.7))
sketch7.addConstraint(Sketcher.Constraint("DistanceY", 4, 2, -1, 1, 17.25))
sketch7.addConstraint(Sketcher.Constraint("DistanceX", 0, 2, 0, 1, 4.32093))
sketch7.setExpression("Constraints[29]", "Params.sketch7_height")
sketch7.setExpression("Constraints[30]", "Params.sketch7_height2")
pocket6 = doc.addObject("PartDesign::Pocket", "Pocket005")
body.addObject(pocket6)
pocket6.Profile = sketch7
pocket6.setExpression("Length", "Params.pocket6_length")
pocket6.Midplane = True

sketch8 = doc.addObject("Sketcher::SketchObject", "Sketch007")
body.addObject(sketch8)
sketch8.AttachmentSupport = (doc.XZ_Plane, [""])
sketch8.MapMode = "FlatFace"
add_polygon(sketch8, [(5.9, -2), (5.9, 0), (9.2, 0), (9.2, -2)])
add_polygon(sketch8, [(5.9, -11), (5.9, -6), (9.2, -6), (9.2, -11)])
add_polygon(sketch8, [(5.9, -22), (5.9, -17), (9.2, -17), (9.2, -22)])
add_polygon(sketch8, [(5.9, -33), (5.9, -26), (9.2, -26), (9.2, -33)])
add_polygon(sketch8, [(5.9, -41.1), (5.9, -38), (9.2, -38), (9.2, -41.1)])
sketch8.addConstraint(Sketcher.Constraint("Vertical", 0))
sketch8.addConstraint(Sketcher.Constraint("Horizontal", 1))
sketch8.addConstraint(Sketcher.Constraint("Vertical", 2))
sketch8.addConstraint(Sketcher.Constraint("Horizontal", 3))
sketch8.addConstraint(Sketcher.Constraint("Vertical", 4))
sketch8.addConstraint(Sketcher.Constraint("Horizontal", 5))
sketch8.addConstraint(Sketcher.Constraint("Vertical", 6))
sketch8.addConstraint(Sketcher.Constraint("Horizontal", 7))
sketch8.addConstraint(Sketcher.Constraint("Vertical", 8))
sketch8.addConstraint(Sketcher.Constraint("Horizontal", 9))
sketch8.addConstraint(Sketcher.Constraint("Vertical", 10))
sketch8.addConstraint(Sketcher.Constraint("Horizontal", 11))
sketch8.addConstraint(Sketcher.Constraint("Vertical", 12))
sketch8.addConstraint(Sketcher.Constraint("Horizontal", 13))
sketch8.addConstraint(Sketcher.Constraint("Vertical", 14))
sketch8.addConstraint(Sketcher.Constraint("Horizontal", 15))
sketch8.addConstraint(Sketcher.Constraint("Vertical", 16))
sketch8.addConstraint(Sketcher.Constraint("Horizontal", 17))
sketch8.addConstraint(Sketcher.Constraint("Vertical", 18))
sketch8.addConstraint(Sketcher.Constraint("Horizontal", 19))
sketch8.addConstraint(Sketcher.Constraint("PointOnObject", 0, 2, -1))
sketch8.addConstraint(Sketcher.Constraint("Vertical", 3, 2, 4, 2))
sketch8.addConstraint(Sketcher.Constraint("Vertical", 2, 2, 5, 2))
sketch8.addConstraint(Sketcher.Constraint("Vertical", 7, 2, 8, 2))
sketch8.addConstraint(Sketcher.Constraint("Vertical", 6, 2, 9, 2))
sketch8.addConstraint(Sketcher.Constraint("Vertical", 11, 2, 12, 2))
sketch8.addConstraint(Sketcher.Constraint("Vertical", 10, 2, 13, 2))
sketch8.addConstraint(Sketcher.Constraint("Vertical", 15, 2, 16, 2))
sketch8.addConstraint(Sketcher.Constraint("Vertical", 14, 2, 17, 2))
sketch8.addConstraint(Sketcher.Constraint("Equal", 6, 8))
sketch8.addConstraint(Sketcher.Constraint("DistanceY", 0, 1, 0, 2, 2.0))
sketch8.addConstraint(Sketcher.Constraint("DistanceY", 4, 1, 4, 2, 5.0))
sketch8.addConstraint(Sketcher.Constraint("DistanceY", 12, 1, 12, 2, 7.0))
sketch8.addConstraint(Sketcher.Constraint("DistanceX", 1, 1, 1, 2, 3.3))
sketch8.addConstraint(Sketcher.Constraint("DistanceY", 16, 1, 16, 2, 3.1))
sketch8.addConstraint(Sketcher.Constraint("DistanceY", 4, 2, -1, 1, 6.0))
sketch8.addConstraint(Sketcher.Constraint("DistanceY", 8, 2, -1, 1, 17.0))
sketch8.addConstraint(Sketcher.Constraint("DistanceY", 12, 2, -1, 1, 26.0))
sketch8.addConstraint(Sketcher.Constraint("DistanceY", 16, 2, -1, 1, 38.0))
sketch8.addConstraint(Sketcher.Constraint("DistanceX", -1, 1, 0, 2, 5.9))
sketch8.setExpression("Constraints[50]", "Params.sketch8_height")
sketch8.setExpression("Constraints[51]", "Params.sketch8_height2")
sketch8.setExpression("Constraints[52]", "Params.sketch8_height3")
sketch8.setExpression("Constraints[53]", "Params.sketch8_width")
sketch8.setExpression("Constraints[54]", "Params.sketch8_height4")
pocket7 = doc.addObject("PartDesign::Pocket", "Pocket006")
body.addObject(pocket7)
pocket7.Profile = sketch8
pocket7.setExpression("Length", "Params.pocket7_length")
pocket7.Midplane = True

sketch9 = doc.addObject("Sketcher::SketchObject", "Sketch008")
body.addObject(sketch9)
sketch9.AttachmentSupport = (doc.XY_Plane, [""])
sketch9.MapMode = "FlatFace"
sketch9.addGeometry(Part.LineSegment(Vector(-1.2, -1.1, 0), Vector(-1.2, -3.9, 0)), False)
sketch9.addGeometry(Part.LineSegment(Vector(-1.2, -3.9, 0), Vector(1.2, -3.9, 0)), False)
sketch9.addGeometry(Part.LineSegment(Vector(1.2, -3.9, 0), Vector(1.2, -1.1, 0)), False)
sketch9.addGeometry(Part.ArcOfCircle(Part.Circle(Vector(0, 0, 0), Vector(0, 0, 1), 1.6), math.radians(-43), math.radians(223)), False)
sketch9.addGeometry(Part.Circle(Vector(0, 0, 0), Vector(0, 0, 1), 0.6), False)
sketch9.addConstraint(Sketcher.Constraint("Coincident", 0, 2, 1, 1))
sketch9.addConstraint(Sketcher.Constraint("Coincident", 1, 2, 2, 1))
sketch9.addConstraint(Sketcher.Constraint("Coincident", 2, 2, 3, 1))
sketch9.addConstraint(Sketcher.Constraint("Coincident", 3, 2, 0, 1))
sketch9.addConstraint(Sketcher.Constraint("Vertical", 0))
sketch9.addConstraint(Sketcher.Constraint("Horizontal", 1))
sketch9.addConstraint(Sketcher.Constraint("Vertical", 2))
sketch9.addConstraint(Sketcher.Constraint("Coincident", 3, 3, -1, 1))
sketch9.addConstraint(Sketcher.Constraint("Coincident", 4, 3, -1, 1))
sketch9.addConstraint(Sketcher.Constraint("Horizontal", 2, 2, 3, 2))
sketch9.addConstraint(Sketcher.Constraint("Diameter", 4, 1.2))
sketch9.addConstraint(Sketcher.Constraint("Radius", 3, 1.65))
sketch9.addConstraint(Sketcher.Constraint("DistanceX", 1, 1, 1, 2, 2.4))
sketch9.addConstraint(Sketcher.Constraint("DistanceY", 0, 2, -1, 1, 3.9))
sketch9.setExpression("Constraints[10]", "Params.sketch9_diameter")
sketch9.setExpression("Constraints[11]", "Params.sketch9_radius")
sketch9.setExpression("Constraints[12]", "Params.sketch9_width")
pad2 = doc.addObject("PartDesign::Pad", "Pad001")
body.addObject(pad2)
pad2.Profile = sketch9
pad2.setExpression("Length", "Params.pad2_length")

sketch10 = doc.addObject("Sketcher::SketchObject", "Sketch009")
body.addObject(sketch10)
sketch10.AttachmentSupport = (doc.YZ_Plane, [""])
sketch10.MapMode = "FlatFace"
sketch10.addGeometry(Part.ArcOfCircle(Part.Circle(Vector(-1.9, 2.4, 0), Vector(0, 0, 1), 1), math.radians(90), math.radians(143)), False)
sketch10.addGeometry(Part.LineSegment(Vector(-1.9, 3.4, 0), Vector(-3.9, 3.4, 0)), False)
sketch10.addGeometry(Part.LineSegment(Vector(-3.9, 3.4, 0), Vector(-3.9, 0.7, 0)), False)
sketch10.addGeometry(Part.ArcOfCircle(Part.Circle(Vector(-1.9, 0.7, 0), Vector(0, 0, 1), 2), math.radians(143), math.radians(180)), False)
sketch10.addGeometry(Part.LineSegment(Vector(-3.5, 1.9, 0), Vector(-2.7, 3, 0)), False)
sketch10.addConstraint(Sketcher.Constraint("Tangent", 0, 1, 1, 1))
sketch10.addConstraint(Sketcher.Constraint("Coincident", 1, 2, 2, 1))
sketch10.addConstraint(Sketcher.Constraint("Tangent", 2, 2, 3, 2))
sketch10.addConstraint(Sketcher.Constraint("Tangent", 3, 1, 4, 1))
sketch10.addConstraint(Sketcher.Constraint("Tangent", 4, 2, 0, 2))
sketch10.addConstraint(Sketcher.Constraint("Horizontal", 1))
sketch10.addConstraint(Sketcher.Constraint("Vertical", 2))
sketch10.addConstraint(Sketcher.Constraint("Vertical", 0, 3, 3, 3))
sketch10.addConstraint(Sketcher.Constraint("Radius", 0, 1.0))
sketch10.addConstraint(Sketcher.Constraint("Radius", 3, 2.0))
sketch10.addConstraint(Sketcher.Constraint("DistanceY", -1, 1, 4, 2, 3.0))
sketch10.addConstraint(Sketcher.Constraint("DistanceX", 0, 3, -1, 1, 1.9))
sketch10.addConstraint(Sketcher.Constraint("DistanceY", -1, 1, 0, 3, 2.4))
sketch10.setExpression("Constraints[8]", "Params.sketch10_radius")
sketch10.setExpression("Constraints[9]", "Params.sketch10_radius2")
pocket8 = doc.addObject("PartDesign::Pocket", "Pocket007")
body.addObject(pocket8)
pocket8.Profile = sketch10
pocket8.setExpression("Length", "Params.pocket8_length")
pocket8.Midplane = True
body2 = doc.addObject("PartDesign::Body", "Body001")

sketch11 = doc.addObject("Sketcher::SketchObject", "Sketch010")
body2.addObject(sketch11)
sketch11.AttachmentSupport = (doc.getObject("XY_Plane001"), [""])
sketch11.MapMode = "FlatFace"
sketch11.addGeometry(Part.Circle(Vector(0, 0, 0), Vector(0, 0, 1), 0.6), False)
sketch11.addConstraint(Sketcher.Constraint("Coincident", 0, 3, -1, 1))
sketch11.addConstraint(Sketcher.Constraint("Diameter", 0, 1.2))
sketch11.setExpression("Constraints[1]", "Params.sketch11_diameter")
pad3 = doc.addObject("PartDesign::Pad", "Pad002")
body2.addObject(pad3)
pad3.Profile = sketch11
pad3.Type = "TwoLengths"
pad3.setExpression("Length", "Params.pad3_length")
pad3.setExpression("Length2", "Params.pad3_length2")

doc.recompute()
